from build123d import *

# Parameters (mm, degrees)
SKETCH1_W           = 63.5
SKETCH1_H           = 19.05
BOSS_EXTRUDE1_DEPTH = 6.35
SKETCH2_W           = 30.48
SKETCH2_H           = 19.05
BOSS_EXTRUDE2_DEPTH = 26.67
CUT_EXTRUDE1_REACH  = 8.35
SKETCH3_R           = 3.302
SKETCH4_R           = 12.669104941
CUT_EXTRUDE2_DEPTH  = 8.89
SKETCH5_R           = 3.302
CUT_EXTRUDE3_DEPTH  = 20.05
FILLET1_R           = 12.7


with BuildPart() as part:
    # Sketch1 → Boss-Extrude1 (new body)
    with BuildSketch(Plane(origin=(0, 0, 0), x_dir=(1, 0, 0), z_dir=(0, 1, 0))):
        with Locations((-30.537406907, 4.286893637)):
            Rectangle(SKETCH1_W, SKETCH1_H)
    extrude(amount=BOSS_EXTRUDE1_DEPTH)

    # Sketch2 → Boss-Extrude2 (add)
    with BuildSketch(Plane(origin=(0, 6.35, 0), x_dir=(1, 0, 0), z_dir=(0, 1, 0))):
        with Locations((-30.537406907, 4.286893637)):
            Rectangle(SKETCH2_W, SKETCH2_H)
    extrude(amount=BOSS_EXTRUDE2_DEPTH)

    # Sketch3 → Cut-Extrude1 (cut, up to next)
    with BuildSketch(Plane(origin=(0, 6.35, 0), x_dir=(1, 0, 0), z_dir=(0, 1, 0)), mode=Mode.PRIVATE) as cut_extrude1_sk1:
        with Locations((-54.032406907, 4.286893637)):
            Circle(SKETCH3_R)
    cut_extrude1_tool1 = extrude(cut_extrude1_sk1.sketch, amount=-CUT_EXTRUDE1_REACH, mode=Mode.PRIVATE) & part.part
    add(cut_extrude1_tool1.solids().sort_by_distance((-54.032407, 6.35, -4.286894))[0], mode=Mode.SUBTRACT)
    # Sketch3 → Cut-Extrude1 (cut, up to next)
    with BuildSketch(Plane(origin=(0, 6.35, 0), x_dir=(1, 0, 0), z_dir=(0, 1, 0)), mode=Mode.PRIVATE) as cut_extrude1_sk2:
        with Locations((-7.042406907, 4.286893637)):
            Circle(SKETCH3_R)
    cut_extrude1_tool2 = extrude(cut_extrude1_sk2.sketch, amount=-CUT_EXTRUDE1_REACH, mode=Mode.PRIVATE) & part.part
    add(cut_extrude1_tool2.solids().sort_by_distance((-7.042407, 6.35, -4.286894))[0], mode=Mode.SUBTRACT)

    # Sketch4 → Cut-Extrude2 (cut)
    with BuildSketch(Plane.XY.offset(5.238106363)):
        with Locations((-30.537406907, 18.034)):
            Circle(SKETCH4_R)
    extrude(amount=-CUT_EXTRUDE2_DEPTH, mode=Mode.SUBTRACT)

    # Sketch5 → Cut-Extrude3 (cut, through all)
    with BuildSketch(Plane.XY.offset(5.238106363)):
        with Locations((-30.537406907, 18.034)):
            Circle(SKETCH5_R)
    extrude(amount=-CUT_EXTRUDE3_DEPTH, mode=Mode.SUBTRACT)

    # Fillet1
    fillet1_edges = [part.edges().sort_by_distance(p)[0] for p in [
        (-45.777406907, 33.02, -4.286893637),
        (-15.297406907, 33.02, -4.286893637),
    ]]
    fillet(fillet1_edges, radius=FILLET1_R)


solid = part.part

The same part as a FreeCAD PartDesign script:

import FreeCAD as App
import Part
import Sketcher

V = App.Vector
Q = App.Units.Quantity


def edges_at(feature, points):
    """Names of the edges that pass closest to the given points."""
    edges = feature.Shape.Edges
    near = lambda p: min(range(len(edges)), key=lambda i: edges[i].distToShape(Part.Vertex(*p))[0])
    return sorted({f"Edge{near(p) + 1}" for p in points})

doc = App.newDocument("Part")
body = doc.addObject("PartDesign::Body", "Body")

# Sketch on XZ plane
sketch1 = body.newObject("Sketcher::SketchObject", "Sketch")
sketch1.AttachmentSupport = (doc.getObject("XZ_Plane"), [""])
sketch1.MapMode = "FlatFace"
sketch1.addGeometry([
    Part.LineSegment(V(-62, -14, 0), V(-62, 5, 0)),
    Part.LineSegment(V(-62, 5, 0), V(1, 5, 0)),
    Part.LineSegment(V(1, 5, 0), V(1, -14, 0)),
    Part.LineSegment(V(1, -14, 0), V(-62, -14, 0)),
], False)
sketch1.addConstraint([
    Sketcher.Constraint("Coincident", 0, 2, 1, 1),
    Sketcher.Constraint("Coincident", 1, 2, 2, 1),
    Sketcher.Constraint("Coincident", 2, 2, 3, 1),
    Sketcher.Constraint("Coincident", 3, 2, 0, 1),
    Sketcher.Constraint("Vertical", 0),
    Sketcher.Constraint("Horizontal", 1),
    Sketcher.Constraint("Vertical", 2),
    Sketcher.Constraint("Horizontal", 3),
    Sketcher.Constraint("DistanceX", 1, 1, 1, 2, Q("2.5 in")),
    Sketcher.Constraint("DistanceY", 0, 1, 0, 2, Q("0.75 in")),
    Sketcher.Constraint("DistanceX", 0, 2, -1, 1, 62.287407),
    Sketcher.Constraint("DistanceY", -1, 1, 0, 2, 5.238106),
])
pad1 = body.newObject("PartDesign::Pad", "Pad")
pad1.Profile = sketch1
pad1.Length = Q("0.25 in")
pad1.Reversed = True

# Sketch on XZ plane
sketch2 = body.newObject("Sketcher::SketchObject", "Sketch001")
sketch2.AttachmentSupport = (doc.getObject("XZ_Plane"), [""])
sketch2.MapMode = "FlatFace"
sketch2.AttachmentOffset = App.Placement(V(0, 0, -0.25 * 25.4), App.Rotation())
sketch2.addGeometry([
    Part.LineSegment(V(-46, -14, 0), V(-46, 5, 0)),
    Part.LineSegment(V(-46, 5, 0), V(-15, 5, 0)),
    Part.LineSegment(V(-15, 5, 0), V(-15, -14, 0)),
    Part.LineSegment(V(-15, -14, 0), V(-46, -14, 0)),
], False)
sketch2.addConstraint([
    Sketcher.Constraint("Coincident", 0, 2, 1, 1),
    Sketcher.Constraint("Coincident", 1, 2, 2, 1),
    Sketcher.Constraint("Coincident", 2, 2, 3, 1),
    Sketcher.Constraint("Coincident", 3, 2, 0, 1),
    Sketcher.Constraint("Vertical", 0),
    Sketcher.Constraint("Horizontal", 1),
    Sketcher.Constraint("Vertical", 2),
    Sketcher.Constraint("Horizontal", 3),
    Sketcher.Constraint("DistanceX", 1, 1, 1, 2, Q("1.2 in")),
    Sketcher.Constraint("DistanceY", 0, 1, 0, 2, Q("0.75 in")),
    Sketcher.Constraint("DistanceX", 0, 2, -1, 1, 45.777407),
    Sketcher.Constraint("DistanceY", -1, 1, 0, 2, 5.238106),
])
pad2 = body.newObject("PartDesign::Pad", "Pad001")
pad2.Profile = sketch2
pad2.Length = Q("1.05 in")
pad2.Reversed = True

# Sketch on XZ plane
sketch3 = body.newObject("Sketcher::SketchObject", "Sketch002")
sketch3.AttachmentSupport = (doc.getObject("XZ_Plane"), [""])
sketch3.MapMode = "FlatFace"
sketch3.AttachmentOffset = App.Placement(V(0, 0, -0.25 * 25.4), App.Rotation())
sketch3.addGeometry(Part.Circle(V(-54, -4.3, 0), V(0, 0, 1), 3.3), False)
sketch3.addConstraint([
    Sketcher.Constraint("Diameter", 0, Q("0.26 in")),
    Sketcher.Constraint("DistanceX", 0, 3, -1, 1, 54.032407),
    Sketcher.Constraint("DistanceY", 0, 3, -1, 1, 4.286894),
])
pocket1 = body.newObject("PartDesign::Pocket", "Pocket")
pocket1.Profile = sketch3
pocket1.Type = "UpToFirst"
pocket1.Reversed = True

# Sketch on XZ plane
sketch4 = body.newObject("Sketcher::SketchObject", "Sketch003")
sketch4.AttachmentSupport = (doc.getObject("XZ_Plane"), [""])
sketch4.MapMode = "FlatFace"
sketch4.AttachmentOffset = App.Placement(V(0, 0, -0.25 * 25.4), App.Rotation())
sketch4.addGeometry(Part.Circle(V(-7, -4.3, 0), V(0, 0, 1), 3.3), False)
sketch4.addConstraint([
    Sketcher.Constraint("Diameter", 0, Q("0.26 in")),
    Sketcher.Constraint("DistanceX", 0, 3, -1, 1, 7.042407),
    Sketcher.Constraint("DistanceY", 0, 3, -1, 1, 4.286894),
])
pocket2 = body.newObject("PartDesign::Pocket", "Pocket001")
pocket2.Profile = sketch4
pocket2.Type = "UpToFirst"
pocket2.Reversed = True

# Sketch on XY plane
sketch5 = body.newObject("Sketcher::SketchObject", "Sketch004")
sketch5.AttachmentSupport = (doc.getObject("XY_Plane"), [""])
sketch5.MapMode = "FlatFace"
sketch5.AttachmentOffset = App.Placement(V(0, 0, 5.238106), App.Rotation())
sketch5.addGeometry(Part.Circle(V(-31, 18, 0), V(0, 0, 1), 13), False)
sketch5.addConstraint([
    Sketcher.Constraint("DistanceY", -1, 1, 0, 3, Q("0.71 in")),
    Sketcher.Constraint("Diameter", 0, 25.33821),
    Sketcher.Constraint("DistanceX", 0, 3, -1, 1, 30.537407),
])
pocket3 = body.newObject("PartDesign::Pocket", "Pocket002")
pocket3.Profile = sketch5
pocket3.Length = Q("0.35 in")

# Sketch on XY plane
sketch6 = body.newObject("Sketcher::SketchObject", "Sketch005")
sketch6.AttachmentSupport = (doc.getObject("XY_Plane"), [""])
sketch6.MapMode = "FlatFace"
sketch6.AttachmentOffset = App.Placement(V(0, 0, 5.238106), App.Rotation())
sketch6.addGeometry(Part.Circle(V(-30.5, 18, 0), V(0, 0, 1), 3.3), False)
sketch6.addConstraint([
    Sketcher.Constraint("Diameter", 0, Q("0.26 in")),
    Sketcher.Constraint("DistanceY", -1, 1, 0, 3, Q("0.71 in")),
    Sketcher.Constraint("DistanceX", 0, 3, -1, 1, 30.537407),
])
pocket4 = body.newObject("PartDesign::Pocket", "Pocket003")
pocket4.Profile = sketch6
pocket4.Type = "ThroughAll"
doc.recompute()

fillet = body.newObject("PartDesign::Fillet", "Fillet")
fillet.Base = (pocket4, edges_at(pocket4, [(-45.777, 33.02, -4.287), (-15.297, 33.02, -4.287)]))
fillet.Radius = Q("0.5 in")

doc.recompute()
